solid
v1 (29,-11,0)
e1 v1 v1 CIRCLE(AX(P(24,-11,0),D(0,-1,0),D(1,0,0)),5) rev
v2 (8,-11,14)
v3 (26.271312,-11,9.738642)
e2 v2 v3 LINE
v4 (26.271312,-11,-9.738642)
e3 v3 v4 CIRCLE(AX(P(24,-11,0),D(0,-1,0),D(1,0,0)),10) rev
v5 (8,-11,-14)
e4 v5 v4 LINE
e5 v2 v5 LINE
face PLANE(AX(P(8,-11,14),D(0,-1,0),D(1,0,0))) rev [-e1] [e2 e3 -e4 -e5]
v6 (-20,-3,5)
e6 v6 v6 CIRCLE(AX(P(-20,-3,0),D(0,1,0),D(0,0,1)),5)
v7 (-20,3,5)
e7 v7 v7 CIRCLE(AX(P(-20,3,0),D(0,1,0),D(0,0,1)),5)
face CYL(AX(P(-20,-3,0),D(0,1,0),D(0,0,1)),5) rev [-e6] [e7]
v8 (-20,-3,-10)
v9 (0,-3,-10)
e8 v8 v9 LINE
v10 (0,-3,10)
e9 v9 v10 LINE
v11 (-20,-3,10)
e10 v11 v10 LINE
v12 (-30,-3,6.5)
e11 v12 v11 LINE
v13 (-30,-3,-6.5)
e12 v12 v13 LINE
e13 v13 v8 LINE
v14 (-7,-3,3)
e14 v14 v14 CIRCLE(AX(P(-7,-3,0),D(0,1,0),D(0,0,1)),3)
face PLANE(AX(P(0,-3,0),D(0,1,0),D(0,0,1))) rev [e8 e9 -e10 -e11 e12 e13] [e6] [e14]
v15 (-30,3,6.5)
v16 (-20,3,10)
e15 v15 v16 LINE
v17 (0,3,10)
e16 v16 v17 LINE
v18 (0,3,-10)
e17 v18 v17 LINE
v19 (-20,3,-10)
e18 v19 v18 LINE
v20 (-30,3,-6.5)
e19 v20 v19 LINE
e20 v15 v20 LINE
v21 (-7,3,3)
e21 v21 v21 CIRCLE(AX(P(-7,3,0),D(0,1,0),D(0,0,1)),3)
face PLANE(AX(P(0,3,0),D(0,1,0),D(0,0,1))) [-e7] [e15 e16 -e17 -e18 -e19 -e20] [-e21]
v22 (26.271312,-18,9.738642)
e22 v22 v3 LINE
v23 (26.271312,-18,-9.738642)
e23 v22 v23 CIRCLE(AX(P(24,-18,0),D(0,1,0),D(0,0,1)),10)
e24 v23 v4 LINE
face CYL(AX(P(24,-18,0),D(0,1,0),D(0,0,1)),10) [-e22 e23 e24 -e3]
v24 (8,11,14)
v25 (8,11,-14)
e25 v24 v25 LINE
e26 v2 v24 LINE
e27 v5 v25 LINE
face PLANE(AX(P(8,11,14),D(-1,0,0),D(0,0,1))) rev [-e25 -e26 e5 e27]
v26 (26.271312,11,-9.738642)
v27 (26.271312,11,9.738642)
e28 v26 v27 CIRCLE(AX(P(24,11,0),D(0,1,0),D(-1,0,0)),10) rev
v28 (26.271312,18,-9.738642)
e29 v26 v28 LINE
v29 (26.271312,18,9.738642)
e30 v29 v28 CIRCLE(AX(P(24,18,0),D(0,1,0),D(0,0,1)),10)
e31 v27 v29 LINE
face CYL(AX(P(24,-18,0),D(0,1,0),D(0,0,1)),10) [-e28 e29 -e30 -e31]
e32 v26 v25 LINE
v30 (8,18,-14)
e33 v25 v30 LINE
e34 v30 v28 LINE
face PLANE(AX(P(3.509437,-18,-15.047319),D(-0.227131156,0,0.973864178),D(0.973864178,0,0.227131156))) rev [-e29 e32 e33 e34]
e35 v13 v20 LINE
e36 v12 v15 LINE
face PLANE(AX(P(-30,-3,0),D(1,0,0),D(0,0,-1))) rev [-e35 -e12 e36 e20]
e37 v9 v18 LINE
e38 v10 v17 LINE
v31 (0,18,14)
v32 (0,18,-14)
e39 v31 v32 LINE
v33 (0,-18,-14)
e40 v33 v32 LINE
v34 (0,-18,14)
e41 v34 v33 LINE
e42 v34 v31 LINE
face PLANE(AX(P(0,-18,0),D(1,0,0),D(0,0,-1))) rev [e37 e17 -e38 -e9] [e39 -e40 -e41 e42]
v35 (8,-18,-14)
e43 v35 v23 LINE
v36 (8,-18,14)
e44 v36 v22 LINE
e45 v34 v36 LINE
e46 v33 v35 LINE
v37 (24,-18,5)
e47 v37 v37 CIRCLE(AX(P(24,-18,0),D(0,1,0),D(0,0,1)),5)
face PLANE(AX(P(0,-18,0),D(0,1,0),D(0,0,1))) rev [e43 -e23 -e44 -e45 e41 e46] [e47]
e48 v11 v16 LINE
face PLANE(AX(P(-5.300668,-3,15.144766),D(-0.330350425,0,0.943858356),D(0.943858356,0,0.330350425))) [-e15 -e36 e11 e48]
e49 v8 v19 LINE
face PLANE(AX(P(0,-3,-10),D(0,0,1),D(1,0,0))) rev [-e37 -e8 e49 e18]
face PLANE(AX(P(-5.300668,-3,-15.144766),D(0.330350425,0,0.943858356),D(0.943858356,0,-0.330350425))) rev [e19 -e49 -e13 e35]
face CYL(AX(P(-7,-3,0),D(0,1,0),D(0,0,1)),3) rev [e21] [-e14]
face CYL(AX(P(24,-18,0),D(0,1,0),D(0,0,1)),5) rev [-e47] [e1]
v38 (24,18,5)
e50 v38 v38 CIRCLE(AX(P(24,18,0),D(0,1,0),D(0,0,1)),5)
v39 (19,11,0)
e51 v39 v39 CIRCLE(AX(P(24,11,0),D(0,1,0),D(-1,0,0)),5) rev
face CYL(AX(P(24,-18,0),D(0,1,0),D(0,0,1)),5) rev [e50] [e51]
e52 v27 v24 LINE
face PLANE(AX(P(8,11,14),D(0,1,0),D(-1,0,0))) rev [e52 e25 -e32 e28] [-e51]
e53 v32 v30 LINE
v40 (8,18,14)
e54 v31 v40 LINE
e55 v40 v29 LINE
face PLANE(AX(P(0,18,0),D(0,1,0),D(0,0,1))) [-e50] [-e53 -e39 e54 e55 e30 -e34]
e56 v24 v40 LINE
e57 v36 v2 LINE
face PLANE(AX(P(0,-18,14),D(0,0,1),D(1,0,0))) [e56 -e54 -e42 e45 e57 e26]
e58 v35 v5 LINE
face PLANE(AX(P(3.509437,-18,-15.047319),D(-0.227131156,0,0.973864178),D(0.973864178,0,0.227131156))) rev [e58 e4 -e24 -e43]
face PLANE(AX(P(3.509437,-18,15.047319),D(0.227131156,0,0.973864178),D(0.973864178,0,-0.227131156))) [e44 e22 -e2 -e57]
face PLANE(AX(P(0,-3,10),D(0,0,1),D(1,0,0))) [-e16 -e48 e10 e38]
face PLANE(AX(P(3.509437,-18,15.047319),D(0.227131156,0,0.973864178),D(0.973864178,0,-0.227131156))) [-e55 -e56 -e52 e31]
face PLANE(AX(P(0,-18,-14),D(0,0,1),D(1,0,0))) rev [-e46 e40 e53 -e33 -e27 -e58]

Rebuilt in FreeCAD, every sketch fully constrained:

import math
import FreeCAD as App
import Part
import Sketcher
from FreeCAD import Vector

doc = App.newDocument("Part")
params = doc.addObject("Spreadsheet::Sheet", "Params")
for row, (alias, value) in enumerate([
    ("sketch1_diameter", "10 mm"),
    ("sketch1_radius", "10 mm"),
    ("sketch1_width", "8 mm"),
    ("sketch1_height", "28 mm"),
    ("pad1_length", "18 mm"),
    ("pad1_length2", "18 mm"),
    ("sketch2_diameter", "10 mm"),
    ("sketch2_diameter2", "6 mm"),
    ("sketch2_radius", "10 mm"),
    ("sketch2_width", "20 mm"),
    ("sketch2_width2", "8 mm"),
    ("pad2_length", "3 mm"),
    ("pad2_length2", "3 mm"),
    ("sketch3_height", "22 mm"),
], start=1):
    params.set(f"A{row}", alias)
    params.set(f"B{row}", "=" + value)
    params.setAlias(f"B{row}", alias)

body = doc.addObject("PartDesign::Body", "Body")

sketch1 = body.newObject("Sketcher::SketchObject", "Sketch")
sketch1.AttachmentSupport = (doc.getObject("XZ_Plane"), [""])
sketch1.MapMode = "FlatFace"
sketch1.addGeometry(Part.LineSegment(Vector(0, 14, 0), Vector(8, 14, 0)), False)
sketch1.addGeometry(Part.LineSegment(Vector(8, 14, 0), Vector(26, 10, 0)), False)
sketch1.addGeometry(Part.ArcOfCircle(Part.Circle(Vector(24, 0, 0), Vector(0, 0, 1), 10), math.radians(-77), math.radians(77)), False)
sketch1.addGeometry(Part.LineSegment(Vector(26, -10, 0), Vector(8, -14, 0)), False)
sketch1.addGeometry(Part.LineSegment(Vector(8, -14, 0), Vector(0, -14, 0)), False)
sketch1.addGeometry(Part.LineSegment(Vector(0, -14, 0), Vector(0, 14, 0)), False)
sketch1.addGeometry(Part.Circle(Vector(24, 0, 0), Vector(0, 0, 1), 5), False)
sketch1.addConstraint(Sketcher.Constraint("Coincident", 0, 2, 1, 1))
sketch1.addConstraint(Sketcher.Constraint("Tangent", 1, 2, 2, 2))
sketch1.addConstraint(Sketcher.Constraint("Tangent", 2, 1, 3, 1))
sketch1.addConstraint(Sketcher.Constraint("Coincident", 3, 2, 4, 1))
sketch1.addConstraint(Sketcher.Constraint("Coincident", 4, 2, 5, 1))
sketch1.addConstraint(Sketcher.Constraint("Coincident", 5, 2, 0, 1))
sketch1.addConstraint(Sketcher.Constraint("Horizontal", 0))
sketch1.addConstraint(Sketcher.Constraint("Horizontal", 4))
sketch1.addConstraint(Sketcher.Constraint("Vertical", 5))
sketch1.addConstraint(Sketcher.Constraint("Coincident", 6, 3, 2, 3))
sketch1.addConstraint(Sketcher.Constraint("Symmetric", 4, 2, 5, 2, -1, 1))
sketch1.addConstraint(Sketcher.Constraint("Symmetric", 1, 2, 2, 1, -1))
sketch1.addConstraint(Sketcher.Constraint("Diameter", 6, 10.0))
sketch1.addConstraint(Sketcher.Constraint("Radius", 2, 10.0))
sketch1.addConstraint(Sketcher.Constraint("DistanceX", 0, 1, 0, 2, 8.0))
sketch1.addConstraint(Sketcher.Constraint("DistanceY", 5, 1, 5, 2, 28.0))
sketch1.addConstraint(Sketcher.Constraint("DistanceX", -1, 1, 2, 3, 24.0))
sketch1.setExpression("Constraints[12]", "Params.sketch1_diameter")
sketch1.setExpression("Constraints[13]", "Params.sketch1_radius")
sketch1.setExpression("Constraints[14]", "Params.sketch1_width")
sketch1.setExpression("Constraints[15]", "Params.sketch1_height")
pad1 = body.newObject("PartDesign::Pad", "Pad")
pad1.Profile = sketch1
pad1.Type = "TwoLengths"
pad1.setExpression("Length", "Params.pad1_length")
pad1.setExpression("Length2", "Params.pad1_length2")
pad1.Reversed = True

sketch2 = body.newObject("Sketcher::SketchObject", "Sketch001")
sketch2.AttachmentSupport = (doc.getObject("XZ_Plane"), [""])
sketch2.MapMode = "FlatFace"
sketch2.addGeometry(Part.LineSegment(Vector(-30, -6.5, 0), Vector(-30, 6.5, 0)), False)
sketch2.addGeometry(Part.LineSegment(Vector(-30, 6.5, 0), Vector(-20, 10, 0)), False)
sketch2.addGeometry(Part.LineSegment(Vector(-20, 10, 0), Vector(0, 10, 0)), False)
sketch2.addGeometry(Part.LineSegment(Vector(0, 10, 0), Vector(0, 14, 0)), False)
sketch2.addGeometry(Part.LineSegment(Vector(0, 14, 0), Vector(8, 14, 0)), False)
sketch2.addGeometry(Part.LineSegment(Vector(8, 14, 0), Vector(26.3, 9.7, 0)), False)
sketch2.addGeometry(Part.ArcOfCircle(Part.Circle(Vector(24, 0, 0), Vector(0, 0, 1), 10), math.radians(-77), math.radians(77)), False)
sketch2.addGeometry(Part.LineSegment(Vector(26.3, -9.7, 0), Vector(8, -14, 0)), False)
sketch2.addGeometry(Part.LineSegment(Vector(8, -14, 0), Vector(0, -14, 0)), False)
sketch2.addGeometry(Part.LineSegment(Vector(0, -14, 0), Vector(0, -10, 0)), False)
sketch2.addGeometry(Part.LineSegment(Vector(0, -10, 0), Vector(-20, -10, 0)), False)
sketch2.addGeometry(Part.LineSegment(Vector(-20, -10, 0), Vector(-30, -6.5, 0)), False)
sketch2.addGeometry(Part.Circle(Vector(-20, 0, 0), Vector(0, 0, 1), 5), False)
sketch2.addGeometry(Part.Circle(Vector(-7, 0, 0), Vector(0, 0, 1), 3), False)
sketch2.addGeometry(Part.Circle(Vector(24, 0, 0), Vector(0, 0, 1), 5), False)
sketch2.addConstraint(Sketcher.Constraint("Coincident", 0, 2, 1, 1))
sketch2.addConstraint(Sketcher.Constraint("Coincident", 1, 2, 2, 1))
sketch2.addConstraint(Sketcher.Constraint("Coincident", 2, 2, 3, 1))
sketch2.addConstraint(Sketcher.Constraint("Coincident", 3, 2, 4, 1))
sketch2.addConstraint(Sketcher.Constraint("Coincident", 4, 2, 5, 1))
sketch2.addConstraint(Sketcher.Constraint("Tangent", 5, 2, 6, 2))
sketch2.addConstraint(Sketcher.Constraint("Tangent", 6, 1, 7, 1))
sketch2.addConstraint(Sketcher.Constraint("Coincident", 7, 2, 8, 1))
sketch2.addConstraint(Sketcher.Constraint("Coincident", 8, 2, 9, 1))
sketch2.addConstraint(Sketcher.Constraint("Coincident", 9, 2, 10, 1))
sketch2.addConstraint(Sketcher.Constraint("Coincident", 10, 2, 11, 1))
sketch2.addConstraint(Sketcher.Constraint("Coincident", 11, 2, 0, 1))
sketch2.addConstraint(Sketcher.Constraint("Vertical", 0))
sketch2.addConstraint(Sketcher.Constraint("Horizontal", 2))
sketch2.addConstraint(Sketcher.Constraint("Vertical", 3))
sketch2.addConstraint(Sketcher.Constraint("Horizontal", 4))
sketch2.addConstraint(Sketcher.Constraint("Horizontal", 8))
sketch2.addConstraint(Sketcher.Constraint("Vertical", 9))
sketch2.addConstraint(Sketcher.Constraint("Horizontal", 10))
sketch2.addConstraint(Sketcher.Constraint("Coincident", 14, 3, 6, 3))
sketch2.addConstraint(Sketcher.Constraint("Equal", 12, 14))
sketch2.addConstraint(Sketcher.Constraint("Symmetric", 3, 2, 8, 2, -1, 1))
sketch2.addConstraint(Sketcher.Constraint("Symmetric", 5, 2, 6, 1, -1))
sketch2.addConstraint(Sketcher.Constraint("Symmetric", 2, 2, 9, 2, -1))
sketch2.addConstraint(Sketcher.Constraint("PointOnObject", 12, 3, -1))
sketch2.addConstraint(Sketcher.Constraint("PointOnObject", 13, 3, -1))
sketch2.addConstraint(Sketcher.Constraint("Vertical", 12, 3, 1, 2))
sketch2.addConstraint(Sketcher.Constraint("Vertical", 1, 2, 10, 2))
sketch2.addConstraint(Sketcher.Constraint("Equal", 1, 11))
sketch2.addConstraint(Sketcher.Constraint("Diameter", 12, 10.0))
sketch2.addConstraint(Sketcher.Constraint("Diameter", 13, 6.0))
sketch2.addConstraint(Sketcher.Constraint("Radius", 6, 10.0))
sketch2.addConstraint(Sketcher.Constraint("DistanceX", 2, 1, 2, 2, 20.0))
sketch2.addConstraint(Sketcher.Constraint("DistanceX", 4, 1, 4, 2, 8.0))
sketch2.addConstraint(Sketcher.Constraint("DistanceY", 0, 1, 0, 2, 13.0))
sketch2.addConstraint(Sketcher.Constraint("DistanceY", 3, 1, 3, 2, 4.0))
sketch2.addConstraint(Sketcher.Constraint("DistanceX", -1, 1, 6, 3, 24.0))
sketch2.addConstraint(Sketcher.Constraint("DistanceX", 13, 3, -1, 1, 7.0))
sketch2.addConstraint(Sketcher.Constraint("DistanceX", 0, 2, -1, 1, 30.0))
sketch2.addConstraint(Sketcher.Constraint("DistanceY", -1, 1, 1, 2, 10.0))
sketch2.setExpression("Constraints[29]", "Params.sketch2_diameter")
sketch2.setExpression("Constraints[30]", "Params.sketch2_diameter2")
sketch2.setExpression("Constraints[31]", "Params.sketch2_radius")
sketch2.setExpression("Constraints[32]", "Params.sketch2_width")
sketch2.setExpression("Constraints[33]", "Params.sketch2_width2")
pad2 = body.newObject("PartDesign::Pad", "Pad001")
pad2.Profile = sketch2
pad2.Type = "TwoLengths"
pad2.setExpression("Length", "Params.pad2_length")
pad2.setExpression("Length2", "Params.pad2_length2")
pad2.Reversed = True

sketch3 = body.newObject("Sketcher::SketchObject", "Sketch002")
sketch3.AttachmentSupport = (doc.getObject("XY_Plane"), [""])
sketch3.MapMode = "FlatFace"
sketch3.AttachmentOffset = App.Placement(Vector(0, 0, -14), App.Rotation())
sketch3.addGeometry(Part.LineSegment(Vector(49, 11, 0), Vector(49, -11, 0)), False)
sketch3.addGeometry(Part.LineSegment(Vector(49, -11, 0), Vector(8, -11, 0)), False)
sketch3.addGeometry(Part.LineSegment(Vector(8, -11, 0), Vector(8, 11, 0)), False)
sketch3.addGeometry(Part.LineSegment(Vector(8, 11, 0), Vector(49, 11, 0)), False)
sketch3.addConstraint(Sketcher.Constraint("Coincident", 0, 2, 1, 1))
sketch3.addConstraint(Sketcher.Constraint("Coincident", 1, 2, 2, 1))
sketch3.addConstraint(Sketcher.Constraint("Coincident", 2, 2, 3, 1))
sketch3.addConstraint(Sketcher.Constraint("Coincident", 3, 2, 0, 1))
sketch3.addConstraint(Sketcher.Constraint("Vertical", 0))
sketch3.addConstraint(Sketcher.Constraint("Horizontal", 1))
sketch3.addConstraint(Sketcher.Constraint("Vertical", 2))
sketch3.addConstraint(Sketcher.Constraint("Horizontal", 3))
sketch3.addConstraint(Sketcher.Constraint("DistanceY", 0, 2, 0, 1, 22.0))
sketch3.addConstraint(Sketcher.Constraint("DistanceY", 0, 2, -1, 1, 11.0))
sketch3.addConstraint(Sketcher.Constraint("DistanceX", -1, 1, 1, 2, 8.0))
sketch3.addConstraint(Sketcher.Constraint("DistanceX", 1, 2, 1, 1, 40.653148))
sketch3.setExpression("Constraints[8]", "Params.sketch3_height")
pocket1 = body.newObject("PartDesign::Pocket", "Pocket")
pocket1.Profile = sketch3
pocket1.Type = "ThroughAll"
pocket1.Reversed = True

doc.recompute()
